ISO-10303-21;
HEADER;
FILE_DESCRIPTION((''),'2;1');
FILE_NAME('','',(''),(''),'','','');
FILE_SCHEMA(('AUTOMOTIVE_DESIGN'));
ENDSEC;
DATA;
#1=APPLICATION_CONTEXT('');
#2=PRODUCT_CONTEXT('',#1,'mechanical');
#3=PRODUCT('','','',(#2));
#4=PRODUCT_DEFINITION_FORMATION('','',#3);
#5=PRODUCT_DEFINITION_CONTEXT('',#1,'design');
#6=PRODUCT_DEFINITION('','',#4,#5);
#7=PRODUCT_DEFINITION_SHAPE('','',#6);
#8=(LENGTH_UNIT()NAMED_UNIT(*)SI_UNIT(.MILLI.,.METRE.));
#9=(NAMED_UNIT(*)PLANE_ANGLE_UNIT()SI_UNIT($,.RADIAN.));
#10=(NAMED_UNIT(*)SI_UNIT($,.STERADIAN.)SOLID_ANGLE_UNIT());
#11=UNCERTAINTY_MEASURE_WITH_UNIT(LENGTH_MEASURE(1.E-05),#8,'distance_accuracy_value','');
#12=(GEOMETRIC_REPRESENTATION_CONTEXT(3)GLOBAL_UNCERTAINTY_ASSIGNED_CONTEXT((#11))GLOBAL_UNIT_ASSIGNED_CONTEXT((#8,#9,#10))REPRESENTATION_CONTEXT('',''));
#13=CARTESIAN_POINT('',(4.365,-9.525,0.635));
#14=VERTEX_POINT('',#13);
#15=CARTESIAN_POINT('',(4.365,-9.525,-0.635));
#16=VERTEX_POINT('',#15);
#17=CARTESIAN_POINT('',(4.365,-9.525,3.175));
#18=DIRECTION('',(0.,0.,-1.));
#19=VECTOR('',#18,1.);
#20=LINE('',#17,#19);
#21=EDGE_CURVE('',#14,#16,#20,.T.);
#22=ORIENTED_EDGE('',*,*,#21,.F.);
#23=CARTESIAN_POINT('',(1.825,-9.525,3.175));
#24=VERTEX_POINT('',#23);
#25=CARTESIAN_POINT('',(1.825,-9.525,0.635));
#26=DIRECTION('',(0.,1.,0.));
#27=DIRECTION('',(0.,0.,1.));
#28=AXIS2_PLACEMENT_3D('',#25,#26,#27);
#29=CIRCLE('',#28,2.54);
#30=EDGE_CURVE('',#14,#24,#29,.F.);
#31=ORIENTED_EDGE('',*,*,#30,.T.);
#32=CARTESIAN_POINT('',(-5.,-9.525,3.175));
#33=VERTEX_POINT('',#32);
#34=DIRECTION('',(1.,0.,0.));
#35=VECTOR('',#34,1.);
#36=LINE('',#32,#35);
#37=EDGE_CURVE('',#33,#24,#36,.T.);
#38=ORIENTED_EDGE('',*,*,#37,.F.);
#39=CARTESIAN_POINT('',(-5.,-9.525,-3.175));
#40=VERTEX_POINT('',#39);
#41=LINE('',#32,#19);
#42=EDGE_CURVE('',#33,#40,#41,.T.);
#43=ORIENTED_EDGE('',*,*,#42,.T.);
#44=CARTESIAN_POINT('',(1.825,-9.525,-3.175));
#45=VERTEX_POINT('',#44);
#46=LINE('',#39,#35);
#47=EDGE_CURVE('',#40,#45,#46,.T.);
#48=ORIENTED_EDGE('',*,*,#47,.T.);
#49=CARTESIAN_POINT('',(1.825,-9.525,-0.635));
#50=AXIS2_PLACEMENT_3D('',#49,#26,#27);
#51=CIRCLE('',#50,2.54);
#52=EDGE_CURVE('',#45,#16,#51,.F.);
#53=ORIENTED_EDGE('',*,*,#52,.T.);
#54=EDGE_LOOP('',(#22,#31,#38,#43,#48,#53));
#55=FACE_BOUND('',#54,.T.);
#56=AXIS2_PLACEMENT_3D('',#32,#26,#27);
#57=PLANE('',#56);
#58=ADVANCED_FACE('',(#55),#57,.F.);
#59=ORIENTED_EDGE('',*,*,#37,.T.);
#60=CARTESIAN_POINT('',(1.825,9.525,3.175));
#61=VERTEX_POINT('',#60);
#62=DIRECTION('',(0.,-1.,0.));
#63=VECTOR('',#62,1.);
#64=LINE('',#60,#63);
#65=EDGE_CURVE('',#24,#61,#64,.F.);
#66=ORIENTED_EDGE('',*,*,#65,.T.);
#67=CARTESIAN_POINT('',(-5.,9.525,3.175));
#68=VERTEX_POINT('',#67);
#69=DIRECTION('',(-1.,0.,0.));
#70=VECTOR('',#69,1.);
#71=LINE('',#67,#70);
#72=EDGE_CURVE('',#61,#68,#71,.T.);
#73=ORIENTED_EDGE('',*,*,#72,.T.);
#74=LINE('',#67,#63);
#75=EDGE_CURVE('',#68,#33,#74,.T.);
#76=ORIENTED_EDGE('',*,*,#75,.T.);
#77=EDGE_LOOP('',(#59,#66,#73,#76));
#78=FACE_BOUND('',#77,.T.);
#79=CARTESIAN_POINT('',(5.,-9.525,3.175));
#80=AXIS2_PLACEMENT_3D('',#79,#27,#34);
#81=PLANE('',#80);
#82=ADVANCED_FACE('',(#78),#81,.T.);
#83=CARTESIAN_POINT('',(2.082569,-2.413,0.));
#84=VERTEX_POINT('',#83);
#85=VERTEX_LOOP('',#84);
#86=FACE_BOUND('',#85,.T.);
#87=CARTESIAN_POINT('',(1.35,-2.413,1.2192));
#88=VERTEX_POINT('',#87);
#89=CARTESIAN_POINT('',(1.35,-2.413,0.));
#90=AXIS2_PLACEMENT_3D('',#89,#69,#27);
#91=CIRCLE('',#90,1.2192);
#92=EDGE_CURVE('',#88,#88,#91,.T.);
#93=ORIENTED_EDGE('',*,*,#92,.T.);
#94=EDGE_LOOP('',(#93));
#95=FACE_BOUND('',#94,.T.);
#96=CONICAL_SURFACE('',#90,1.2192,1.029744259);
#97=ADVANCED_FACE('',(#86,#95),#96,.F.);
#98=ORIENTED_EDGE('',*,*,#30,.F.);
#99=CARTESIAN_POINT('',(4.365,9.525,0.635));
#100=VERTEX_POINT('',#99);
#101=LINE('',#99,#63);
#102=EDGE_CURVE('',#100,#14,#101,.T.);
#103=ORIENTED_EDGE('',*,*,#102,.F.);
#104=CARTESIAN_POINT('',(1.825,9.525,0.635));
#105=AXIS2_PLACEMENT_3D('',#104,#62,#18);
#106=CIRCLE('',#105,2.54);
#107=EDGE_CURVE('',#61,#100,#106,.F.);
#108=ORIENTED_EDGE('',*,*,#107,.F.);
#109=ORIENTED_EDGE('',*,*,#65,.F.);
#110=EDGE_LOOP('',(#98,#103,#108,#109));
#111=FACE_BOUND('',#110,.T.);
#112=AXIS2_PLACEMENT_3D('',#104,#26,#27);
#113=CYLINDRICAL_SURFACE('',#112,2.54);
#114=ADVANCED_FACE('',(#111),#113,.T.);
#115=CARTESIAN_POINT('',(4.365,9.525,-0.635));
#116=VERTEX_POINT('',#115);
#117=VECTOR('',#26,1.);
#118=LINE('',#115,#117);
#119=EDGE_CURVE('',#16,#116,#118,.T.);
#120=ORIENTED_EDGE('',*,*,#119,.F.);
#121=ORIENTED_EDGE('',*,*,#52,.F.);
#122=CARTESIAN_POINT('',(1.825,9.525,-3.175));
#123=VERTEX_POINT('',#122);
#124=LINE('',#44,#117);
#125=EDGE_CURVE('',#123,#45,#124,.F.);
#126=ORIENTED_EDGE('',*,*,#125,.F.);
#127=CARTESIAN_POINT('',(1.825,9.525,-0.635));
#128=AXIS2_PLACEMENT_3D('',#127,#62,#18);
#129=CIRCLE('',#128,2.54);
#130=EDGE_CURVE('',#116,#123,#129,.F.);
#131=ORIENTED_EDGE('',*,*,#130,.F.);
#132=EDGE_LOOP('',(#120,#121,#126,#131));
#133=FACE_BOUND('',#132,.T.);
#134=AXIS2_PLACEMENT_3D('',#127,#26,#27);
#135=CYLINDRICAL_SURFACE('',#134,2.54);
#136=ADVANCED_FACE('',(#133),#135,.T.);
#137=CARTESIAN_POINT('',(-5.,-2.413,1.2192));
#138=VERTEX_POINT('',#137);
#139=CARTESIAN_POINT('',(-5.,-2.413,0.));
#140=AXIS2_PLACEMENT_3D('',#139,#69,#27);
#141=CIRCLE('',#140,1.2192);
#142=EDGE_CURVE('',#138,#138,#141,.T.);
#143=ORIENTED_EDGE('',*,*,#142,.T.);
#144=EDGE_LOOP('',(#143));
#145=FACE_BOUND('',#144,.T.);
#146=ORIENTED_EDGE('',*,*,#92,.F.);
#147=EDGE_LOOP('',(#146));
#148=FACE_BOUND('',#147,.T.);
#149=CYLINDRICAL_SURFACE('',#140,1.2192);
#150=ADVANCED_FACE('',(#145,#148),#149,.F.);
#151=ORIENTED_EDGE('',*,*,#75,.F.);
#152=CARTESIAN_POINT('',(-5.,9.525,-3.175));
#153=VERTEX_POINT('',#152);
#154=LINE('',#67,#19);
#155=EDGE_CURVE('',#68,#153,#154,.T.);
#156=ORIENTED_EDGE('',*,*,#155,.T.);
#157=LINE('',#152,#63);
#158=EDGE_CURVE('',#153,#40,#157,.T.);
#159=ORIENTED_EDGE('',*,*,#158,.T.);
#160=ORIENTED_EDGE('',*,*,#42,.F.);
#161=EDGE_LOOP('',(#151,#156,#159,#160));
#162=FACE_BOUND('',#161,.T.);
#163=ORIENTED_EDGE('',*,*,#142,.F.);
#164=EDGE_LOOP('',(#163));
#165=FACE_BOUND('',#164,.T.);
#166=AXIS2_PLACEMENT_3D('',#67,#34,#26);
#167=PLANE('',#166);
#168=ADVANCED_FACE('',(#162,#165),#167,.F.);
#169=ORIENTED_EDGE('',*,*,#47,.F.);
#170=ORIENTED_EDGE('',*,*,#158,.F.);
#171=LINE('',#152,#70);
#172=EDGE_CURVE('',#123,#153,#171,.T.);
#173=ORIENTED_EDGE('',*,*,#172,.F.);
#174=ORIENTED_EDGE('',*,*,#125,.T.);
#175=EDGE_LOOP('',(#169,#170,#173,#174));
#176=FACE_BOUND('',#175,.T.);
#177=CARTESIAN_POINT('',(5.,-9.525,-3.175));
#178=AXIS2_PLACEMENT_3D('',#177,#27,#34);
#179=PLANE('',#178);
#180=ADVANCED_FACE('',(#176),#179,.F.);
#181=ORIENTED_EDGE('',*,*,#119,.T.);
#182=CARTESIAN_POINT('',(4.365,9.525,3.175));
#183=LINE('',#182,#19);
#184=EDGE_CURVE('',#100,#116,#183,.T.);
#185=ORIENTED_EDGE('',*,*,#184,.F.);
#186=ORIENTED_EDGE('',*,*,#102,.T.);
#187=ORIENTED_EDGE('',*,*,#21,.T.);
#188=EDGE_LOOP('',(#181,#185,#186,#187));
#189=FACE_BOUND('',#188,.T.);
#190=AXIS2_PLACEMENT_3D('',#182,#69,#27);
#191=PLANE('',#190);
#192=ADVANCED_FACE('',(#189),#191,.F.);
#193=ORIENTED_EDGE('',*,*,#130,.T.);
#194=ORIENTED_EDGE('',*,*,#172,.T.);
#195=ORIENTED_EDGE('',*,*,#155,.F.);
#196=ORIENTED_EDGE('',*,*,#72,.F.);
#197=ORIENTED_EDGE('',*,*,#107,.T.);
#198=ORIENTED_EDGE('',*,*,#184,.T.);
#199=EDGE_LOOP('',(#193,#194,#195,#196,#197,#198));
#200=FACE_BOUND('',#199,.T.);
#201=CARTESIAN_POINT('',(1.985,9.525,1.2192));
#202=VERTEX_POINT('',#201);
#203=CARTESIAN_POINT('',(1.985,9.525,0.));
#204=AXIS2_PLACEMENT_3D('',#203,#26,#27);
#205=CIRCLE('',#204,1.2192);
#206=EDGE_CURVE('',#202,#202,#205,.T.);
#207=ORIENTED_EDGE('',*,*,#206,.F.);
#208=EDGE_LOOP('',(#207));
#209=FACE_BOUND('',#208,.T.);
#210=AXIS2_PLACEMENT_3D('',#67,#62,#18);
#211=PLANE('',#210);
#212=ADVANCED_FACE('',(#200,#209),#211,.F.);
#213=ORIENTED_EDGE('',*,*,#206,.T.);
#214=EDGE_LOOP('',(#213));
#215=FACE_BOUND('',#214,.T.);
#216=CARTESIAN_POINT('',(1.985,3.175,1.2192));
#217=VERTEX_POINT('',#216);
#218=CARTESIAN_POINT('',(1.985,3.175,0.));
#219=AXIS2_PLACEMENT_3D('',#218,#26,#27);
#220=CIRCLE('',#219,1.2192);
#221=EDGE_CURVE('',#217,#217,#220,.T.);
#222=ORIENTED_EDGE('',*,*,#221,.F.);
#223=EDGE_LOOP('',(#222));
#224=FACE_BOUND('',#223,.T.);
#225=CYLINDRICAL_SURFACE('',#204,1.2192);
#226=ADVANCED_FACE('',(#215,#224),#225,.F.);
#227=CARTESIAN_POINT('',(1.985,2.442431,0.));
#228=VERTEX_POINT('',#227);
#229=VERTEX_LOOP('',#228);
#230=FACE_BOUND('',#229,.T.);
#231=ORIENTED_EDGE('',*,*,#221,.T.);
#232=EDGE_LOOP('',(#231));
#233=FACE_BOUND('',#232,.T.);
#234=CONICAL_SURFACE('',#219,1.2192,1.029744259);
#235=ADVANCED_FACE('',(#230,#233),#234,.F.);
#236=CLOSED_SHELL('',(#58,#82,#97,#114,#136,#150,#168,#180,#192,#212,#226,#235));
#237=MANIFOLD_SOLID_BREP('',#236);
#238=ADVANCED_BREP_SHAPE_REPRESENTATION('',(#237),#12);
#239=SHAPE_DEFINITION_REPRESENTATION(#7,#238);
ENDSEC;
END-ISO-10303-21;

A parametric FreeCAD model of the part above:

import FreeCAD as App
import Part
import Sketcher
Q = App.Units.Quantity


def edges_at(feature, points):
    """Names of the edges that pass closest to the given points."""
    edges = feature.Shape.Edges
    near = lambda p: min(range(len(edges)), key=lambda i: edges[i].distToShape(Part.Vertex(*p))[0])
    return sorted({f"Edge{near(p) + 1}" for p in points})


def add_polygon(sketch, points):
    """Adds a closed chain of lines whose ends are joined by coincident constraints."""
    first, n = sketch.GeometryCount, len(points)
    for a, b in zip(points, points[1:] + points[:1]):
        sketch.addGeometry(Part.LineSegment(App.Vector(*a, 0), App.Vector(*b, 0)), False)
    for i in range(n):
        sketch.addConstraint(Sketcher.Constraint("Coincident", first + i, 2, first + (i + 1) % n, 1))

doc = App.newDocument("Part")
body = doc.addObject("PartDesign::Body", "Body")

sketch1 = body.newObject("Sketcher::SketchObject", "Sketch")
sketch1.AttachmentSupport = (doc.getObject("XY_Plane"), [""])
sketch1.MapMode = "FlatFace"
add_polygon(sketch1, [(-5, 10), (-5, -10), (5, -10), (5, 10)])
sketch1.addConstraint([
    Sketcher.Constraint("Vertical", 0),
    Sketcher.Constraint("Horizontal", 1),
    Sketcher.Constraint("Vertical", 2),
    Sketcher.Constraint("Horizontal", 3),
    Sketcher.Constraint("Symmetric", 0, 2, 2, 2, -1, 1),
    Sketcher.Constraint("DistanceY", 0, 2, 0, 1, Q("0.75 in")),
    Sketcher.Constraint("DistanceX", 1, 1, 1, 2, Q("10 mm")),
])
pad1 = body.newObject("PartDesign::Pad", "Pad")
pad1.Profile = sketch1
pad1.Length = Q("0.25 in")
pad1.Midplane = True

sketch2 = body.newObject("Sketcher::SketchObject", "Sketch001")
sketch2.AttachmentSupport = (doc.getObject("XZ_Plane"), [""])
sketch2.MapMode = "FlatFace"
sketch2.AttachmentOffset = App.Placement(App.Vector(0, 0, -0.375 * 25.4), App.Rotation())
sketch2.addGeometry(Part.Circle(App.Vector(2, 0, 0), App.Vector(0, 0, 1), 1.2), False)
sketch2.addConstraint([
    Sketcher.Constraint("PointOnObject", 0, 3, -1),
    Sketcher.Constraint("Diameter", 0, Q("0.096 in")),
    Sketcher.Constraint("DistanceX", -1, 1, 0, 3, Q("1.985 mm")),
])
doc.recompute()
hole = body.newObject("PartDesign::Hole", "Hole")
hole.Profile = sketch2
hole.ThreadType = "None"
hole.Diameter = Q("0.096 in")
hole.DepthType = "Dimension"
hole.Depth = Q("0.25 in")
hole.DrillPoint = "Angled"
hole.DrillPointAngle = 118
hole.Reversed = True

sketch3 = body.newObject("Sketcher::SketchObject", "Sketch002")
sketch3.AttachmentSupport = (doc.getObject("YZ_Plane"), [""])
sketch3.MapMode = "FlatFace"
sketch3.AttachmentOffset = App.Placement(App.Vector(0, 0, -5), App.Rotation())
sketch3.addGeometry(Part.Circle(App.Vector(-2.4, 0, 0), App.Vector(0, 0, 1), 1.2), False)
sketch3.addConstraint([
    Sketcher.Constraint("PointOnObject", 0, 3, -1),
    Sketcher.Constraint("Diameter", 0, Q("0.096 in")),
    Sketcher.Constraint("DistanceX", 0, 3, -1, 1, Q("0.095 in")),
])
doc.recompute()
hole2 = body.newObject("PartDesign::Hole", "Hole001")
hole2.Profile = sketch3
hole2.ThreadType = "None"
hole2.Diameter = Q("0.096 in")
hole2.DepthType = "Dimension"
hole2.Depth = Q("0.25 in")
hole2.DrillPoint = "Angled"
hole2.DrillPointAngle = 118
hole2.Reversed = True
doc.recompute()

fillet = body.newObject("PartDesign::Fillet", "Fillet")
fillet.Base = (hole2, edges_at(hole2, [(5, 0, 3.175), (5, 0, -3.175)]))
fillet.Radius = Q("0.0625 in")

sketch4 = body.newObject("Sketcher::SketchObject", "Sketch003")
sketch4.AttachmentSupport = (doc.getObject("XZ_Plane"), [""])
sketch4.MapMode = "FlatFace"
sketch4.AttachmentOffset = App.Placement(App.Vector(0, 0, 0.375 * 25.4), App.Rotation())
add_polygon(sketch4, [(4.4, 3.2), (4.4, -3.2), (5, -3.2), (5, 3.2)])
sketch4.addConstraint([
    Sketcher.Constraint("Vertical", 0),
    Sketcher.Constraint("Horizontal", 1),
    Sketcher.Constraint("Vertical", 2),
    Sketcher.Constraint("Horizontal", 3),
    Sketcher.Constraint("DistanceY", 0, 2, 0, 1, Q("0.25 in")),
    Sketcher.Constraint("DistanceX", 1, 1, 1, 2, Q("0.025 in")),
    Sketcher.Constraint("DistanceY", 0, 2, -1, 1, Q("0.125 in")),
    Sketcher.Constraint("DistanceX", -1, 1, 0, 2, Q("4.365 mm")),
])
pocket1 = body.newObject("PartDesign::Pocket", "Pocket")
pocket1.Profile = sketch4
pocket1.Type = "ThroughAll"
doc.recompute()

fillet2 = body.newObject("PartDesign::Fillet", "Fillet001")
fillet2.Base = (pocket1, edges_at(pocket1, [(4.365, 0, -2.857), (4.365, 0, 2.857)]))
fillet2.Radius = Q("0.1 in")

doc.recompute()
